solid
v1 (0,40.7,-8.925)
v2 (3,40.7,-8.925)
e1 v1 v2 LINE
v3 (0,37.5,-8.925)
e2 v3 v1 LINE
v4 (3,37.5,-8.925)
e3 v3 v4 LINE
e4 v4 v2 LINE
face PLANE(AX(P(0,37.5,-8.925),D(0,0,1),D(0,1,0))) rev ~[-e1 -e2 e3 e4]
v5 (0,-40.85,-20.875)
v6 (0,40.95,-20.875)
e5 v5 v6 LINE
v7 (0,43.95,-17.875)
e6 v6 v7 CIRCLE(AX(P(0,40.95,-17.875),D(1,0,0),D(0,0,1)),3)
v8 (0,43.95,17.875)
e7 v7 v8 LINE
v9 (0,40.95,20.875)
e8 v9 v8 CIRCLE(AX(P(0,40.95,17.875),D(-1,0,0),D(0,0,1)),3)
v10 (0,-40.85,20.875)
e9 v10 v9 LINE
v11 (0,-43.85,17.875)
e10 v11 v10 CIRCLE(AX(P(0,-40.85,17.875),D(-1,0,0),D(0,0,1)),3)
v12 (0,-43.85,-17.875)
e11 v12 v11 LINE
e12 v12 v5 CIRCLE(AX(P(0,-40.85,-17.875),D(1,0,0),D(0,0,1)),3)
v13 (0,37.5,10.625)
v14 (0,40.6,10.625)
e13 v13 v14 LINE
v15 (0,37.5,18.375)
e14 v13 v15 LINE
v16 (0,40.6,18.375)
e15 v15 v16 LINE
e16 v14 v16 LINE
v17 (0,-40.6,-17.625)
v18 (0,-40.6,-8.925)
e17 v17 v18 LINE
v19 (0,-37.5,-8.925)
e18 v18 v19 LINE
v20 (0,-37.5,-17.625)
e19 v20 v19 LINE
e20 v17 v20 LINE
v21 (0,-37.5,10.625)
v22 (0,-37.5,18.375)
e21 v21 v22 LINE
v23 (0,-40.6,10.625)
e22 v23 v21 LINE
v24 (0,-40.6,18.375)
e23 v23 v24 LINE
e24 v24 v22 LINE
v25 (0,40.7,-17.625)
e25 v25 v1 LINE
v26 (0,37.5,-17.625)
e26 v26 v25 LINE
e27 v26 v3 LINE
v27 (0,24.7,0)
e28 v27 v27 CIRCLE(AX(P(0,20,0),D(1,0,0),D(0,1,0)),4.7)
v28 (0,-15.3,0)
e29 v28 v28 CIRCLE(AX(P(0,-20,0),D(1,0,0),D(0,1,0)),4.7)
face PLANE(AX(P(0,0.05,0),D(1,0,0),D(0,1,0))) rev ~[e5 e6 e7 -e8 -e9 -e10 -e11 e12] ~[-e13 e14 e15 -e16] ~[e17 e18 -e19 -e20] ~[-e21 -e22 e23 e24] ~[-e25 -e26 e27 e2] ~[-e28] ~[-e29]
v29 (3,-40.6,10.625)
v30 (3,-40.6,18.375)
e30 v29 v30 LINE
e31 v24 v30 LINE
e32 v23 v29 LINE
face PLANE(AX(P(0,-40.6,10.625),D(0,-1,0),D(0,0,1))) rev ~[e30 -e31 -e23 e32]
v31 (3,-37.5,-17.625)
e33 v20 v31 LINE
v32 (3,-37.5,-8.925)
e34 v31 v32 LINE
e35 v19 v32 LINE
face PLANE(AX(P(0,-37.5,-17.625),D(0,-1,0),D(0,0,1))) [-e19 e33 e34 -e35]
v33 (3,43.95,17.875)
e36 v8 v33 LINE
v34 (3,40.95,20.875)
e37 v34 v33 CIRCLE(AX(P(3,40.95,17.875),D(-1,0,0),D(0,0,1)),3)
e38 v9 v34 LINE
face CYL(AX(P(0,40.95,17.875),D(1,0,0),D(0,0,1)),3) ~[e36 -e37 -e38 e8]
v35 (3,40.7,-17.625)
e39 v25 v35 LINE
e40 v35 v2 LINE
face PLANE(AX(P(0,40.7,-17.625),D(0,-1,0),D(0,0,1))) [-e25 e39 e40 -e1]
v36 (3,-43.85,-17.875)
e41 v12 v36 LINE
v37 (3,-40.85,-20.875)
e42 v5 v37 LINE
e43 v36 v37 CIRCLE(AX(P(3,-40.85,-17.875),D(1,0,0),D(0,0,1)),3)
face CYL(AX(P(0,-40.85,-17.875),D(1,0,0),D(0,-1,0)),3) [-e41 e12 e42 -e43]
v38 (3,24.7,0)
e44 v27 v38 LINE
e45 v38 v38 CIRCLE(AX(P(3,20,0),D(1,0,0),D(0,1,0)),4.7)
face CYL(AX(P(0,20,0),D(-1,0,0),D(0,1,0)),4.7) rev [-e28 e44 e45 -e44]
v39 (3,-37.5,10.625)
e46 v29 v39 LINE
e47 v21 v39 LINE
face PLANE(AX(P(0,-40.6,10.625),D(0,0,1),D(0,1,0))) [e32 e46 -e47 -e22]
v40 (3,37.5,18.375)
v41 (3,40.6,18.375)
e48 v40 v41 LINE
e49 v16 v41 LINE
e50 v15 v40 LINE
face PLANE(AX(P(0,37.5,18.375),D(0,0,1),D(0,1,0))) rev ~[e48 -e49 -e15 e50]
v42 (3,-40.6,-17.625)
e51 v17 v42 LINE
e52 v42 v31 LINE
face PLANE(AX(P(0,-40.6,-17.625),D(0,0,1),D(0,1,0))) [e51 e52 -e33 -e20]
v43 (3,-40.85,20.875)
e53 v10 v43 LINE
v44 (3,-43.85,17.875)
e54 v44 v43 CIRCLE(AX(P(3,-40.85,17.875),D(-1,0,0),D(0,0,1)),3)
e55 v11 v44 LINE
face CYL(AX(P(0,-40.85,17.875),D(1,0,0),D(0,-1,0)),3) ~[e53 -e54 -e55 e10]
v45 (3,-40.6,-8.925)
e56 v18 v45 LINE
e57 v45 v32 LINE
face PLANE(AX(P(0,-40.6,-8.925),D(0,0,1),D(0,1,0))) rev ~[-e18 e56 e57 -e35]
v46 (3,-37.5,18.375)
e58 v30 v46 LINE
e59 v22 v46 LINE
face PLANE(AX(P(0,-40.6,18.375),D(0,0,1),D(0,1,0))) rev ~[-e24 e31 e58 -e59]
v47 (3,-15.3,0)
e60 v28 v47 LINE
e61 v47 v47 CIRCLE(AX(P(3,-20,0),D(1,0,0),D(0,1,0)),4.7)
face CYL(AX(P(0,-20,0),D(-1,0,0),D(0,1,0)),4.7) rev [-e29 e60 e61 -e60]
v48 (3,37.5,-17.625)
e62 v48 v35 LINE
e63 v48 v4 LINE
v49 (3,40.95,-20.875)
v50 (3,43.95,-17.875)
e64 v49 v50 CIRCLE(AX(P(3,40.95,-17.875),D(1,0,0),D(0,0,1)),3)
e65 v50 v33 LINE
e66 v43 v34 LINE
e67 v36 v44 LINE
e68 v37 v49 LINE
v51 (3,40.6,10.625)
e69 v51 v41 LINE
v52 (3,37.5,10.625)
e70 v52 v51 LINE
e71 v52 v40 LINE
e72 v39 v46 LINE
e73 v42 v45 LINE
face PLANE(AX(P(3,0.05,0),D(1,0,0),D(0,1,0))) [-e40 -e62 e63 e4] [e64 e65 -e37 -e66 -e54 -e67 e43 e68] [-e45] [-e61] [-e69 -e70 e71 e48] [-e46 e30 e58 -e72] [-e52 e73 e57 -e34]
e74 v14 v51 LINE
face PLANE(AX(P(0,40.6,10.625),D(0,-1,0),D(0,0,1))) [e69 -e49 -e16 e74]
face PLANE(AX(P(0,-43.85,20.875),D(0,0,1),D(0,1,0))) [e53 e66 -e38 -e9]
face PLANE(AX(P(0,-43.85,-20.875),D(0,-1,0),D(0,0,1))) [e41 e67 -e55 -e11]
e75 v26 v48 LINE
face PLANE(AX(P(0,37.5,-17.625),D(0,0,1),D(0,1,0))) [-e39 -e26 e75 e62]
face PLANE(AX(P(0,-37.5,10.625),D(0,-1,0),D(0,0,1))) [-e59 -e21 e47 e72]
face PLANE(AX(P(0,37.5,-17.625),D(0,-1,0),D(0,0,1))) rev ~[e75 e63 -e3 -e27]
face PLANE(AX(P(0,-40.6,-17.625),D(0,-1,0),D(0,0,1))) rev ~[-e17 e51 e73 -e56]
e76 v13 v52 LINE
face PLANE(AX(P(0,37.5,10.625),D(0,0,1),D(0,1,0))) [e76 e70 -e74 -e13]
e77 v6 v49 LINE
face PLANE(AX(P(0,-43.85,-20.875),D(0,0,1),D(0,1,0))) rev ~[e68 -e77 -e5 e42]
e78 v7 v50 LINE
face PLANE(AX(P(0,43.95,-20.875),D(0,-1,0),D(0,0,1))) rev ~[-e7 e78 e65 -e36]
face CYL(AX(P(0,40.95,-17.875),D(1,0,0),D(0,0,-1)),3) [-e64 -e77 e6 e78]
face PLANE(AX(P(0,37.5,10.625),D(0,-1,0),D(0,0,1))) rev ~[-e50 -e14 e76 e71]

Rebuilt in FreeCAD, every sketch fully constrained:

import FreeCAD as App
import Part
import Sketcher

V = App.Vector
Q = App.Units.Quantity


def edges_at(feature, points):
    """Names of the edges that pass closest to the given points."""
    edges = feature.Shape.Edges
    near = lambda p: min(range(len(edges)), key=lambda i: edges[i].distToShape(Part.Vertex(*p))[0])
    return sorted({f"Edge{near(p) + 1}" for p in points})

doc = App.newDocument("Part")
params = doc.addObject("Spreadsheet::Sheet", "Params")
for row, (alias, value) in enumerate([
    ("sketch1_diameter", "9.4 mm"),
    ("sketch1_width", "87.8 mm"),
    ("sketch1_width2", "3.1 mm"),
    ("sketch1_width3", "3.2 mm"),
    ("sketch1_height", "8.7 mm"),
    ("pad1_length", "3 mm"),
    ("fillet_radius", "3 mm"),
], start=1):
    params.set(f"A{row}", alias)
    params.set(f"B{row}", "=" + value)
    params.setAlias(f"B{row}", alias)

body = doc.addObject("PartDesign::Body", "Body")

sketch1 = body.newObject("Sketcher::SketchObject", "Sketch")
sketch1.AttachmentSupport = (doc.getObject("YZ_Plane"), [""])
sketch1.MapMode = "FlatFace"
sketch1.addGeometry(Part.LineSegment(V(-43.85, 20.875, 0), V(-43.85, -20.875, 0)), False)
sketch1.addGeometry(Part.LineSegment(V(-43.85, -20.875, 0), V(43.95, -20.875, 0)), False)
sketch1.addGeometry(Part.LineSegment(V(43.95, -20.875, 0), V(43.95, 20.875, 0)), False)
sketch1.addGeometry(Part.LineSegment(V(43.95, 20.875, 0), V(-43.85, 20.875, 0)), False)
sketch1.addGeometry(Part.LineSegment(V(-37.5, -17.625, 0), V(-40.6, -17.625, 0)), False)
sketch1.addGeometry(Part.LineSegment(V(-40.6, -17.625, 0), V(-40.6, -8.925, 0)), False)
sketch1.addGeometry(Part.LineSegment(V(-40.6, -8.925, 0), V(-37.5, -8.925, 0)), False)
sketch1.addGeometry(Part.LineSegment(V(-37.5, -8.925, 0), V(-37.5, -17.625, 0)), False)
sketch1.addGeometry(Part.Circle(V(-20, 0, 0), V(0, 0, 1), 4.7), False)
sketch1.addGeometry(Part.LineSegment(V(40.7, -17.625, 0), V(37.5, -17.625, 0)), False)
sketch1.addGeometry(Part.LineSegment(V(37.5, -17.625, 0), V(37.5, -8.925, 0)), False)
sketch1.addGeometry(Part.LineSegment(V(37.5, -8.925, 0), V(40.7, -8.925, 0)), False)
sketch1.addGeometry(Part.LineSegment(V(40.7, -8.925, 0), V(40.7, -17.625, 0)), False)
sketch1.addGeometry(Part.Circle(V(20, 0, 0), V(0, 0, 1), 4.7), False)
sketch1.addGeometry(Part.LineSegment(V(-37.5, 10.625, 0), V(-40.6, 10.625, 0)), False)
sketch1.addGeometry(Part.LineSegment(V(-40.6, 10.625, 0), V(-40.6, 18.375, 0)), False)
sketch1.addGeometry(Part.LineSegment(V(-40.6, 18.375, 0), V(-37.5, 18.375, 0)), False)
sketch1.addGeometry(Part.LineSegment(V(-37.5, 18.375, 0), V(-37.5, 10.625, 0)), False)
sketch1.addGeometry(Part.LineSegment(V(40.6, 10.625, 0), V(37.5, 10.625, 0)), False)
sketch1.addGeometry(Part.LineSegment(V(37.5, 10.625, 0), V(37.5, 18.375, 0)), False)
sketch1.addGeometry(Part.LineSegment(V(37.5, 18.375, 0), V(40.6, 18.375, 0)), False)
sketch1.addGeometry(Part.LineSegment(V(40.6, 18.375, 0), V(40.6, 10.625, 0)), False)
sketch1.addConstraint(Sketcher.Constraint("Coincident", 0, 2, 1, 1))
sketch1.addConstraint(Sketcher.Constraint("Coincident", 1, 2, 2, 1))
sketch1.addConstraint(Sketcher.Constraint("Coincident", 2, 2, 3, 1))
sketch1.addConstraint(Sketcher.Constraint("Coincident", 3, 2, 0, 1))
sketch1.addConstraint(Sketcher.Constraint("Coincident", 4, 2, 5, 1))
sketch1.addConstraint(Sketcher.Constraint("Coincident", 5, 2, 6, 1))
sketch1.addConstraint(Sketcher.Constraint("Coincident", 6, 2, 7, 1))
sketch1.addConstraint(Sketcher.Constraint("Coincident", 7, 2, 4, 1))
sketch1.addConstraint(Sketcher.Constraint("Coincident", 9, 2, 10, 1))
sketch1.addConstraint(Sketcher.Constraint("Coincident", 10, 2, 11, 1))
sketch1.addConstraint(Sketcher.Constraint("Coincident", 11, 2, 12, 1))
sketch1.addConstraint(Sketcher.Constraint("Coincident", 12, 2, 9, 1))
sketch1.addConstraint(Sketcher.Constraint("Coincident", 14, 2, 15, 1))
sketch1.addConstraint(Sketcher.Constraint("Coincident", 15, 2, 16, 1))
sketch1.addConstraint(Sketcher.Constraint("Coincident", 16, 2, 17, 1))
sketch1.addConstraint(Sketcher.Constraint("Coincident", 17, 2, 14, 1))
sketch1.addConstraint(Sketcher.Constraint("Coincident", 18, 2, 19, 1))
sketch1.addConstraint(Sketcher.Constraint("Coincident", 19, 2, 20, 1))
sketch1.addConstraint(Sketcher.Constraint("Coincident", 20, 2, 21, 1))
sketch1.addConstraint(Sketcher.Constraint("Coincident", 21, 2, 18, 1))
sketch1.addConstraint(Sketcher.Constraint("Vertical", 0))
sketch1.addConstraint(Sketcher.Constraint("Horizontal", 1))
sketch1.addConstraint(Sketcher.Constraint("Vertical", 2))
sketch1.addConstraint(Sketcher.Constraint("Horizontal", 3))
sketch1.addConstraint(Sketcher.Constraint("Horizontal", 4))
sketch1.addConstraint(Sketcher.Constraint("Vertical", 5))
sketch1.addConstraint(Sketcher.Constraint("Horizontal", 6))
sketch1.addConstraint(Sketcher.Constraint("Vertical", 7))
sketch1.addConstraint(Sketcher.Constraint("Horizontal", 9))
sketch1.addConstraint(Sketcher.Constraint("Vertical", 10))
sketch1.addConstraint(Sketcher.Constraint("Horizontal", 11))
sketch1.addConstraint(Sketcher.Constraint("Vertical", 12))
sketch1.addConstraint(Sketcher.Constraint("Horizontal", 14))
sketch1.addConstraint(Sketcher.Constraint("Vertical", 15))
sketch1.addConstraint(Sketcher.Constraint("Horizontal", 16))
sketch1.addConstraint(Sketcher.Constraint("Vertical", 17))
sketch1.addConstraint(Sketcher.Constraint("Horizontal", 18))
sketch1.addConstraint(Sketcher.Constraint("Vertical", 19))
sketch1.addConstraint(Sketcher.Constraint("Horizontal", 20))
sketch1.addConstraint(Sketcher.Constraint("Vertical", 21))
sketch1.addConstraint(Sketcher.Constraint("Equal", 8, 13))
sketch1.addConstraint(Sketcher.Constraint("Symmetric", 8, 3, 13, 3, -1, 1))
sketch1.addConstraint(Sketcher.Constraint("Symmetric", 7, 2, 9, 2, -2))
sketch1.addConstraint(Sketcher.Constraint("Symmetric", 17, 2, 18, 2, -2))
sketch1.addConstraint(Sketcher.Constraint("Symmetric", 15, 2, 20, 2, -2))
sketch1.addConstraint(Sketcher.Constraint("PointOnObject", 8, 3, -1))
sketch1.addConstraint(Sketcher.Constraint("Horizontal", 6, 2, 10, 2))
sketch1.addConstraint(Sketcher.Constraint("Vertical", 5, 2, 14, 2))
sketch1.addConstraint(Sketcher.Constraint("Vertical", 7, 2, 16, 2))
sketch1.addConstraint(Sketcher.Constraint("Diameter", 8, Q("9.4 mm")))
sketch1.addConstraint(Sketcher.Constraint("DistanceX", 1, 1, 1, 2, Q("87.8 mm")))
sketch1.addConstraint(Sketcher.Constraint("DistanceX", 4, 2, 4, 1, Q("3.1 mm")))
sketch1.addConstraint(Sketcher.Constraint("DistanceX", 9, 2, 9, 1, Q("3.2 mm")))
sketch1.addConstraint(Sketcher.Constraint("DistanceY", 5, 1, 5, 2, Q("8.7 mm")))
sketch1.addConstraint(Sketcher.Constraint("DistanceX", 8, 3, -1, 1, Q("20 mm")))
sketch1.addConstraint(Sketcher.Constraint("DistanceX", 7, 2, 9, 2, Q("75 mm")))
sketch1.addConstraint(Sketcher.Constraint("DistanceY", 0, 2, 0, 1, Q("41.75 mm")))
sketch1.addConstraint(Sketcher.Constraint("DistanceY", 15, 1, 15, 2, Q("7.75 mm")))
sketch1.addConstraint(Sketcher.Constraint("DistanceY", 4, 2, 3, 2, Q("38.5 mm")))
sketch1.addConstraint(Sketcher.Constraint("DistanceY", 15, 2, 3, 2, Q("2.5 mm")))
sketch1.addConstraint(Sketcher.Constraint("DistanceX", 0, 2, -1, 1, Q("43.85 mm")))
sketch1.addConstraint(Sketcher.Constraint("DistanceY", 0, 2, -1, 1, Q("20.875 mm")))
sketch1.setExpression("Constraints[49]", "Params.sketch1_diameter")
sketch1.setExpression("Constraints[50]", "Params.sketch1_width")
sketch1.setExpression("Constraints[51]", "Params.sketch1_width2")
sketch1.setExpression("Constraints[52]", "Params.sketch1_width3")
sketch1.setExpression("Constraints[53]", "Params.sketch1_height")
pad1 = body.newObject("PartDesign::Pad", "Pad")
pad1.Profile = sketch1
pad1.setExpression("Length", "Params.pad1_length")
doc.recompute()

fillet = body.newObject("PartDesign::Fillet", "Fillet")
fillet.Base = (pad1, edges_at(pad1, [
    (1.5, -43.85, 20.875),
    (1.5, -43.85, -20.875),
    (1.5, 43.95, 20.875),
    (1.5, 43.95, -20.875),
]))
fillet.setExpression("Radius", "Params.fillet_radius")

doc.recompute()
